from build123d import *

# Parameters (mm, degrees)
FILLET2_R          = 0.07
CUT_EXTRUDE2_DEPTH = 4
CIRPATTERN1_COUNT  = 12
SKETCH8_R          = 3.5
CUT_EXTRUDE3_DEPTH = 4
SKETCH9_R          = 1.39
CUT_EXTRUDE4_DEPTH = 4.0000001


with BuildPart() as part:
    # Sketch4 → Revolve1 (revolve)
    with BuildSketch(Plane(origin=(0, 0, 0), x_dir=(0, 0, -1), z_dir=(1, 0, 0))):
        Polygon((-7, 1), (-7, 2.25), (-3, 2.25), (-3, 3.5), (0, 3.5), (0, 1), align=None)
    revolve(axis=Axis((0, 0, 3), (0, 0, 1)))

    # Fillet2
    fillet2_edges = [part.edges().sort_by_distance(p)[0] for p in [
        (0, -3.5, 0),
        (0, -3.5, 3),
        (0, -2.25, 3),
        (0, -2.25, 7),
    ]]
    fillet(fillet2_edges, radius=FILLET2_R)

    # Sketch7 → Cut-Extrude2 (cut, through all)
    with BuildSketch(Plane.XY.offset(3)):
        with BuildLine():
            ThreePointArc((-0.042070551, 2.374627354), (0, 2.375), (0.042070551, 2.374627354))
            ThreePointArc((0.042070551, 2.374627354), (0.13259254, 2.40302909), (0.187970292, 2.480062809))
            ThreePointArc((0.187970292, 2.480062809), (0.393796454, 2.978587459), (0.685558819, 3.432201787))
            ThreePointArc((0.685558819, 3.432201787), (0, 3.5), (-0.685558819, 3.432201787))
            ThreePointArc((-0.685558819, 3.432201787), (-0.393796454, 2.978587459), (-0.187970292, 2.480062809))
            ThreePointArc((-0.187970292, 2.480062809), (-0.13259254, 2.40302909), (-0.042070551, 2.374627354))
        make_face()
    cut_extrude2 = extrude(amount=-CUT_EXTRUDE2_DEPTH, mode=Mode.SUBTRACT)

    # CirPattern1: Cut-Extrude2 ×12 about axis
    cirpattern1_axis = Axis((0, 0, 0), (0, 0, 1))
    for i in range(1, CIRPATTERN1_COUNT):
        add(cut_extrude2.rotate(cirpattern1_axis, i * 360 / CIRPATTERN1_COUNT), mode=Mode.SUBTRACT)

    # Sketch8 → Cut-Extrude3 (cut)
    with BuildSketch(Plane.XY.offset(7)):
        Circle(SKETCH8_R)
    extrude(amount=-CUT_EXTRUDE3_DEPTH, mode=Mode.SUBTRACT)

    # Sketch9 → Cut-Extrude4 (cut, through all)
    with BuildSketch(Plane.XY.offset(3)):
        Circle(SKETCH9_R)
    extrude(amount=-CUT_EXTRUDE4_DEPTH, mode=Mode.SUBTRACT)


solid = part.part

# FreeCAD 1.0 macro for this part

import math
import FreeCAD as App
import Part
import Sketcher
from FreeCAD import Vector


def edges_at(feature, points):
    """Names of the edges that pass closest to the given points."""
    edges = feature.Shape.Edges
    near = lambda p: min(range(len(edges)), key=lambda i: edges[i].distToShape(Part.Vertex(*p))[0])
    return sorted({f"Edge{near(p) + 1}" for p in points})


def add_polygon(sketch, points):
    """Adds a closed chain of lines whose ends are joined by coincident constraints."""
    first, n = sketch.GeometryCount, len(points)
    for a, b in zip(points, points[1:] + points[:1]):
        sketch.addGeometry(Part.LineSegment(App.Vector(*a, 0), App.Vector(*b, 0)), False)
    for i in range(n):
        sketch.addConstraint(Sketcher.Constraint("Coincident", first + i, 2, first + (i + 1) % n, 1))

doc = App.newDocument("Part")
body = doc.addObject("PartDesign::Body", "Body")

sketch1 = doc.addObject("Sketcher::SketchObject", "Sketch")
body.addObject(sketch1)
sketch1.AttachmentSupport = (doc.YZ_Plane, [""])
sketch1.MapMode = "FlatFace"
add_polygon(sketch1, [(2.25, 7), (1, 7), (1, 0), (3.5, 0), (3.5, 3), (2.25, 3)])
sketch1.addConstraint(Sketcher.Constraint("Horizontal", 0))
sketch1.addConstraint(Sketcher.Constraint("Vertical", 1))
sketch1.addConstraint(Sketcher.Constraint("Horizontal", 2))
sketch1.addConstraint(Sketcher.Constraint("Vertical", 3))
sketch1.addConstraint(Sketcher.Constraint("Horizontal", 4))
sketch1.addConstraint(Sketcher.Constraint("Vertical", 5))
sketch1.addConstraint(Sketcher.Constraint("PointOnObject", 1, 2, -1))
sketch1.addConstraint(Sketcher.Constraint("Equal", 0, 4))
sketch1.addConstraint(Sketcher.Constraint("DistanceY", 1, 2, 1, 1, 7.0))
sketch1.addConstraint(Sketcher.Constraint("DistanceY", 3, 1, 3, 2, 3.0))
sketch1.addConstraint(Sketcher.Constraint("DistanceX", 2, 1, 2, 2, 2.5))
sketch1.addConstraint(Sketcher.Constraint("DistanceX", -1, 1, 0, 2, 1.0))
revolution = doc.addObject("PartDesign::Revolution", "Revolution")
body.addObject(revolution)
revolution.Profile = sketch1
revolution.ReferenceAxis = (sketch1, ["V_Axis"])
revolution.Angle = 360
doc.recompute()

fillet = doc.addObject("PartDesign::Fillet", "Fillet")
body.addObject(fillet)
fillet.Base = (revolution, edges_at(revolution, [
    (0, -3.5, 0),
    (0, -3.5, 3),
    (0, -2.25, 3),
    (0, -2.25, 7),
]))
fillet.Radius = 0.07

sketch2 = doc.addObject("Sketcher::SketchObject", "Sketch001")
body.addObject(sketch2)
sketch2.AttachmentSupport = (doc.XY_Plane, [""])
sketch2.MapMode = "FlatFace"
sketch2.AttachmentOffset = App.Placement(Vector(0, 0, 3), App.Rotation())
sketch2.addGeometry(Part.ArcOfCircle(Part.Circle(Vector(0, -0.000002, 0), Vector(0, 0, 1), 2.375002), math.radians(88.985015), math.radians(91.014985)), False)
sketch2.addGeometry(Part.ArcOfCircle(Part.Circle(Vector(0.044728, 2.524615, 0), Vector(0, 0, 1), 0.150011), math.radians(-91.014986), math.radians(-17.276979)), False)
sketch2.addGeometry(Part.ArcOfCircle(Part.Circle(Vector(3.052611, 1.589089, 0), Vector(0, 0, 1), 3), math.radians(142.093777), math.radians(162.723021)), False)
sketch2.addGeometry(Part.ArcOfCircle(Part.Circle(Vector(0, 0, 0), Vector(0, 0, 1), 3.5), math.radians(78.704218), math.radians(101.295782)), False)
sketch2.addGeometry(Part.ArcOfCircle(Part.Circle(Vector(-3.052611, 1.589089, 0), Vector(0, 0, 1), 3), math.radians(17.276979), math.radians(37.906223)), False)
sketch2.addGeometry(Part.ArcOfCircle(Part.Circle(Vector(-0.044728, 2.524615, 0), Vector(0, 0, 1), 0.150011), math.radians(-162.723021), math.radians(-88.985014)), False)
sketch2.addConstraint(Sketcher.Constraint("Tangent", 0, 1, 1, 1))
sketch2.addConstraint(Sketcher.Constraint("Tangent", 1, 2, 2, 2))
sketch2.addConstraint(Sketcher.Constraint("Coincident", 2, 1, 3, 1))
sketch2.addConstraint(Sketcher.Constraint("Coincident", 3, 2, 4, 2))
sketch2.addConstraint(Sketcher.Constraint("Tangent", 4, 1, 5, 1))
sketch2.addConstraint(Sketcher.Constraint("Tangent", 5, 2, 0, 2))
sketch2.addConstraint(Sketcher.Constraint("Coincident", 0, 3, -1, 1))
sketch2.addConstraint(Sketcher.Constraint("Coincident", 3, 3, -1, 1))
sketch2.addConstraint(Sketcher.Constraint("Equal", 2, 4))
sketch2.addConstraint(Sketcher.Constraint("Equal", 1, 5))
sketch2.addConstraint(Sketcher.Constraint("Symmetric", 2, 3, 4, 3, -2))
sketch2.addConstraint(Sketcher.Constraint("Radius", 2, 3.0))
sketch2.addConstraint(Sketcher.Constraint("Radius", 3, 3.5))
sketch2.addConstraint(Sketcher.Constraint("Radius", 1, 0.150011))
sketch2.addConstraint(Sketcher.Constraint("Radius", 0, 2.375002))
sketch2.addConstraint(Sketcher.Constraint("DistanceY", -1, 1, 2, 1, 3.432202))
sketch2.addConstraint(Sketcher.Constraint("DistanceX", 5, 3, 0, 1, 0.086798))
pocket1 = doc.addObject("PartDesign::Pocket", "Pocket")
body.addObject(pocket1)
pocket1.Profile = sketch2
pocket1.Type = "ThroughAll"
doc.recompute()

polarpattern = doc.addObject("PartDesign::PolarPattern", "PolarPattern")
body.addObject(polarpattern)
polarpattern.Originals = [pocket1]
polarpattern.Axis = (doc.Z_Axis, [""])
polarpattern.Angle = 360
polarpattern.Occurrences = 12
body.Tip = polarpattern

sketch3 = doc.addObject("Sketcher::SketchObject", "Sketch002")
body.addObject(sketch3)
sketch3.AttachmentSupport = (doc.XY_Plane, [""])
sketch3.MapMode = "FlatFace"
sketch3.AttachmentOffset = App.Placement(Vector(0, 0, 7), App.Rotation())
sketch3.addGeometry(Part.Circle(Vector(0, 0, 0), Vector(0, 0, 1), 3.5), False)
sketch3.addConstraint(Sketcher.Constraint("Coincident", 0, 3, -1, 1))
sketch3.addConstraint(Sketcher.Constraint("Diameter", 0, 7.0))
pocket2 = doc.addObject("PartDesign::Pocket", "Pocket001")
body.addObject(pocket2)
pocket2.Profile = sketch3
pocket2.Length = 4

sketch4 = doc.addObject("Sketcher::SketchObject", "Sketch003")
body.addObject(sketch4)
sketch4.AttachmentSupport = (doc.XY_Plane, [""])
sketch4.MapMode = "FlatFace"
sketch4.AttachmentOffset = App.Placement(Vector(0, 0, 3), App.Rotation())
sketch4.addGeometry(Part.Circle(Vector(0, 0, 0), Vector(0, 0, 1), 1.39), False)
sketch4.addConstraint(Sketcher.Constraint("Coincident", 0, 3, -1, 1))
sketch4.addConstraint(Sketcher.Constraint("Diameter", 0, 2.78))
pocket3 = doc.addObject("PartDesign::Pocket", "Pocket002")
body.addObject(pocket3)
pocket3.Profile = sketch4
pocket3.Type = "ThroughAll"

doc.recompute()
